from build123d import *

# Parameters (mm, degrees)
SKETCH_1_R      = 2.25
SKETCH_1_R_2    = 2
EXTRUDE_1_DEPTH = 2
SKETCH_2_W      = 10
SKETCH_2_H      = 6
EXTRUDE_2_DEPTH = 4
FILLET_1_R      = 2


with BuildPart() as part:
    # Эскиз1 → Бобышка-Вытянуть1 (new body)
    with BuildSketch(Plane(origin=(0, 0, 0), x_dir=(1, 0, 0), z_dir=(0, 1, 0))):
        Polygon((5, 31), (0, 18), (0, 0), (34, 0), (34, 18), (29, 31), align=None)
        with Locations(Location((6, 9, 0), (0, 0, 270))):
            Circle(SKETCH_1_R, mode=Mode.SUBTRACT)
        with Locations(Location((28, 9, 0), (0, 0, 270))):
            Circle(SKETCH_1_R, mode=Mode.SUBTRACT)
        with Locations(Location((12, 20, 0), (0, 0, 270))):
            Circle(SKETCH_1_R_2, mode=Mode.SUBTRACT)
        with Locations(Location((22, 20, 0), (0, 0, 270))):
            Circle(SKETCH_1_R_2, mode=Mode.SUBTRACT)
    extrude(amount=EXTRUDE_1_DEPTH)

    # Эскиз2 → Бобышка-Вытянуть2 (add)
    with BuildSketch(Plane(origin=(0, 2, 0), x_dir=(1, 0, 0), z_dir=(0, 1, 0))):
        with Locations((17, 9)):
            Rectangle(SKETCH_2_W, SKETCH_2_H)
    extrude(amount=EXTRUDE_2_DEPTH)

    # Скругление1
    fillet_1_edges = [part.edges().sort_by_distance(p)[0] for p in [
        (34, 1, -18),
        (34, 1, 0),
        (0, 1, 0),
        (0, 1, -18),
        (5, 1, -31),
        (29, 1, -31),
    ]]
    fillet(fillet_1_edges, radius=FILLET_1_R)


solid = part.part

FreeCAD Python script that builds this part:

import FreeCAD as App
import Part
import Sketcher


def edges_at(feature, points):
    """Names of the edges that pass closest to the given points."""
    edges = feature.Shape.Edges
    near = lambda p: min(range(len(edges)), key=lambda i: edges[i].distToShape(Part.Vertex(*p))[0])
    return sorted({f"Edge{near(p) + 1}" for p in points})


def add_polygon(sketch, points):
    """Adds a closed chain of lines whose ends are joined by coincident constraints."""
    first, n = sketch.GeometryCount, len(points)
    for a, b in zip(points, points[1:] + points[:1]):
        sketch.addGeometry(Part.LineSegment(App.Vector(*a, 0), App.Vector(*b, 0)), False)
    for i in range(n):
        sketch.addConstraint(Sketcher.Constraint("Coincident", first + i, 2, first + (i + 1) % n, 1))

doc = App.newDocument("Part")
body = doc.addObject("PartDesign::Body", "Body")

# Sketch on XZ plane
sketch1 = body.newObject("Sketcher::SketchObject", "Sketch")
sketch1.AttachmentSupport = (doc.getObject("XZ_Plane"), [""])
sketch1.MapMode = "FlatFace"
add_polygon(sketch1, [(5, -31), (0, -18), (0, 0), (34, 0), (34, -18), (29, -31)])  # lines 0-5
sketch1.addGeometry(Part.Circle(App.Vector(6, -9, 0), App.Vector(0, 0, 1), 2.25), False)  # 6
sketch1.addGeometry(Part.Circle(App.Vector(28, -9, 0), App.Vector(0, 0, 1), 2.25), False)  # 7
sketch1.addGeometry(Part.Circle(App.Vector(12, -20, 0), App.Vector(0, 0, 1), 2), False)  # 8
sketch1.addGeometry(Part.Circle(App.Vector(22, -20, 0), App.Vector(0, 0, 1), 2), False)  # 9
sketch1.addConstraint([
    Sketcher.Constraint("Vertical", 1),
    Sketcher.Constraint("Horizontal", 2),
    Sketcher.Constraint("Vertical", 3),
    Sketcher.Constraint("Horizontal", 5),
    Sketcher.Constraint("Coincident", 1, 2, -1, 1),
    Sketcher.Constraint("Equal", 6, 7),
    Sketcher.Constraint("Equal", 8, 9),
    Sketcher.Constraint("Horizontal", 6, 3, 7, 3),
    Sketcher.Constraint("Horizontal", 8, 3, 9, 3),
    Sketcher.Constraint("Horizontal", 0, 2, 3, 2),
    Sketcher.Constraint("Equal", 0, 4),
    Sketcher.Constraint("Diameter", 8, 4.0),
    Sketcher.Constraint("Diameter", 6, 4.5),
    Sketcher.Constraint("DistanceX", 2, 1, 2, 2, 34.0),
    Sketcher.Constraint("DistanceX", 5, 2, 5, 1, 24.0),
    Sketcher.Constraint("DistanceY", 1, 1, 1, 2, 18.0),
    Sketcher.Constraint("DistanceX", -1, 1, 6, 3, 6.0),
    Sketcher.Constraint("DistanceY", 6, 3, -1, 1, 9.0),
    Sketcher.Constraint("DistanceX", -1, 1, 7, 3, 28.0),
    Sketcher.Constraint("DistanceX", -1, 1, 8, 3, 12.0),
    Sketcher.Constraint("DistanceY", 8, 3, -1, 1, 20.0),
    Sketcher.Constraint("DistanceX", -1, 1, 9, 3, 22.0),
    Sketcher.Constraint("DistanceY", 4, 2, -1, 1, 31.0),
])
pad1 = body.newObject("PartDesign::Pad", "Pad")
pad1.Profile = sketch1
pad1.Length = 2
pad1.Reversed = True

# Sketch on XZ plane
sketch2 = body.newObject("Sketcher::SketchObject", "Sketch001")
sketch2.AttachmentSupport = (doc.getObject("XZ_Plane"), [""])
sketch2.MapMode = "FlatFace"
sketch2.AttachmentOffset = App.Placement(App.Vector(0, 0, -2), App.Rotation())
add_polygon(sketch2, [(12, -12), (12, -6), (22, -6), (22, -12)])  # lines 0-3
sketch2.addConstraint([
    Sketcher.Constraint("Vertical", 0),
    Sketcher.Constraint("Horizontal", 1),
    Sketcher.Constraint("Vertical", 2),
    Sketcher.Constraint("Horizontal", 3),
    Sketcher.Constraint("DistanceX", 1, 1, 1, 2, 10.0),
    Sketcher.Constraint("DistanceY", 0, 1, 0, 2, 6.0),
    Sketcher.Constraint("DistanceX", -1, 1, 0, 2, 12.0),
    Sketcher.Constraint("DistanceY", 0, 2, -1, 1, 6.0),
])
pad2 = body.newObject("PartDesign::Pad", "Pad001")
pad2.Profile = sketch2
pad2.Length = 4
pad2.Reversed = True
doc.recompute()

fillet = body.newObject("PartDesign::Fillet", "Fillet")
fillet.Base = (pad2, edges_at(pad2, [
    (34, 1, -18),
    (34, 1, 0),
    (0, 1, 0),
    (0, 1, -18),
    (5, 1, -31),
    (29, 1, -31),
]))
fillet.Radius = 2

doc.recompute()
